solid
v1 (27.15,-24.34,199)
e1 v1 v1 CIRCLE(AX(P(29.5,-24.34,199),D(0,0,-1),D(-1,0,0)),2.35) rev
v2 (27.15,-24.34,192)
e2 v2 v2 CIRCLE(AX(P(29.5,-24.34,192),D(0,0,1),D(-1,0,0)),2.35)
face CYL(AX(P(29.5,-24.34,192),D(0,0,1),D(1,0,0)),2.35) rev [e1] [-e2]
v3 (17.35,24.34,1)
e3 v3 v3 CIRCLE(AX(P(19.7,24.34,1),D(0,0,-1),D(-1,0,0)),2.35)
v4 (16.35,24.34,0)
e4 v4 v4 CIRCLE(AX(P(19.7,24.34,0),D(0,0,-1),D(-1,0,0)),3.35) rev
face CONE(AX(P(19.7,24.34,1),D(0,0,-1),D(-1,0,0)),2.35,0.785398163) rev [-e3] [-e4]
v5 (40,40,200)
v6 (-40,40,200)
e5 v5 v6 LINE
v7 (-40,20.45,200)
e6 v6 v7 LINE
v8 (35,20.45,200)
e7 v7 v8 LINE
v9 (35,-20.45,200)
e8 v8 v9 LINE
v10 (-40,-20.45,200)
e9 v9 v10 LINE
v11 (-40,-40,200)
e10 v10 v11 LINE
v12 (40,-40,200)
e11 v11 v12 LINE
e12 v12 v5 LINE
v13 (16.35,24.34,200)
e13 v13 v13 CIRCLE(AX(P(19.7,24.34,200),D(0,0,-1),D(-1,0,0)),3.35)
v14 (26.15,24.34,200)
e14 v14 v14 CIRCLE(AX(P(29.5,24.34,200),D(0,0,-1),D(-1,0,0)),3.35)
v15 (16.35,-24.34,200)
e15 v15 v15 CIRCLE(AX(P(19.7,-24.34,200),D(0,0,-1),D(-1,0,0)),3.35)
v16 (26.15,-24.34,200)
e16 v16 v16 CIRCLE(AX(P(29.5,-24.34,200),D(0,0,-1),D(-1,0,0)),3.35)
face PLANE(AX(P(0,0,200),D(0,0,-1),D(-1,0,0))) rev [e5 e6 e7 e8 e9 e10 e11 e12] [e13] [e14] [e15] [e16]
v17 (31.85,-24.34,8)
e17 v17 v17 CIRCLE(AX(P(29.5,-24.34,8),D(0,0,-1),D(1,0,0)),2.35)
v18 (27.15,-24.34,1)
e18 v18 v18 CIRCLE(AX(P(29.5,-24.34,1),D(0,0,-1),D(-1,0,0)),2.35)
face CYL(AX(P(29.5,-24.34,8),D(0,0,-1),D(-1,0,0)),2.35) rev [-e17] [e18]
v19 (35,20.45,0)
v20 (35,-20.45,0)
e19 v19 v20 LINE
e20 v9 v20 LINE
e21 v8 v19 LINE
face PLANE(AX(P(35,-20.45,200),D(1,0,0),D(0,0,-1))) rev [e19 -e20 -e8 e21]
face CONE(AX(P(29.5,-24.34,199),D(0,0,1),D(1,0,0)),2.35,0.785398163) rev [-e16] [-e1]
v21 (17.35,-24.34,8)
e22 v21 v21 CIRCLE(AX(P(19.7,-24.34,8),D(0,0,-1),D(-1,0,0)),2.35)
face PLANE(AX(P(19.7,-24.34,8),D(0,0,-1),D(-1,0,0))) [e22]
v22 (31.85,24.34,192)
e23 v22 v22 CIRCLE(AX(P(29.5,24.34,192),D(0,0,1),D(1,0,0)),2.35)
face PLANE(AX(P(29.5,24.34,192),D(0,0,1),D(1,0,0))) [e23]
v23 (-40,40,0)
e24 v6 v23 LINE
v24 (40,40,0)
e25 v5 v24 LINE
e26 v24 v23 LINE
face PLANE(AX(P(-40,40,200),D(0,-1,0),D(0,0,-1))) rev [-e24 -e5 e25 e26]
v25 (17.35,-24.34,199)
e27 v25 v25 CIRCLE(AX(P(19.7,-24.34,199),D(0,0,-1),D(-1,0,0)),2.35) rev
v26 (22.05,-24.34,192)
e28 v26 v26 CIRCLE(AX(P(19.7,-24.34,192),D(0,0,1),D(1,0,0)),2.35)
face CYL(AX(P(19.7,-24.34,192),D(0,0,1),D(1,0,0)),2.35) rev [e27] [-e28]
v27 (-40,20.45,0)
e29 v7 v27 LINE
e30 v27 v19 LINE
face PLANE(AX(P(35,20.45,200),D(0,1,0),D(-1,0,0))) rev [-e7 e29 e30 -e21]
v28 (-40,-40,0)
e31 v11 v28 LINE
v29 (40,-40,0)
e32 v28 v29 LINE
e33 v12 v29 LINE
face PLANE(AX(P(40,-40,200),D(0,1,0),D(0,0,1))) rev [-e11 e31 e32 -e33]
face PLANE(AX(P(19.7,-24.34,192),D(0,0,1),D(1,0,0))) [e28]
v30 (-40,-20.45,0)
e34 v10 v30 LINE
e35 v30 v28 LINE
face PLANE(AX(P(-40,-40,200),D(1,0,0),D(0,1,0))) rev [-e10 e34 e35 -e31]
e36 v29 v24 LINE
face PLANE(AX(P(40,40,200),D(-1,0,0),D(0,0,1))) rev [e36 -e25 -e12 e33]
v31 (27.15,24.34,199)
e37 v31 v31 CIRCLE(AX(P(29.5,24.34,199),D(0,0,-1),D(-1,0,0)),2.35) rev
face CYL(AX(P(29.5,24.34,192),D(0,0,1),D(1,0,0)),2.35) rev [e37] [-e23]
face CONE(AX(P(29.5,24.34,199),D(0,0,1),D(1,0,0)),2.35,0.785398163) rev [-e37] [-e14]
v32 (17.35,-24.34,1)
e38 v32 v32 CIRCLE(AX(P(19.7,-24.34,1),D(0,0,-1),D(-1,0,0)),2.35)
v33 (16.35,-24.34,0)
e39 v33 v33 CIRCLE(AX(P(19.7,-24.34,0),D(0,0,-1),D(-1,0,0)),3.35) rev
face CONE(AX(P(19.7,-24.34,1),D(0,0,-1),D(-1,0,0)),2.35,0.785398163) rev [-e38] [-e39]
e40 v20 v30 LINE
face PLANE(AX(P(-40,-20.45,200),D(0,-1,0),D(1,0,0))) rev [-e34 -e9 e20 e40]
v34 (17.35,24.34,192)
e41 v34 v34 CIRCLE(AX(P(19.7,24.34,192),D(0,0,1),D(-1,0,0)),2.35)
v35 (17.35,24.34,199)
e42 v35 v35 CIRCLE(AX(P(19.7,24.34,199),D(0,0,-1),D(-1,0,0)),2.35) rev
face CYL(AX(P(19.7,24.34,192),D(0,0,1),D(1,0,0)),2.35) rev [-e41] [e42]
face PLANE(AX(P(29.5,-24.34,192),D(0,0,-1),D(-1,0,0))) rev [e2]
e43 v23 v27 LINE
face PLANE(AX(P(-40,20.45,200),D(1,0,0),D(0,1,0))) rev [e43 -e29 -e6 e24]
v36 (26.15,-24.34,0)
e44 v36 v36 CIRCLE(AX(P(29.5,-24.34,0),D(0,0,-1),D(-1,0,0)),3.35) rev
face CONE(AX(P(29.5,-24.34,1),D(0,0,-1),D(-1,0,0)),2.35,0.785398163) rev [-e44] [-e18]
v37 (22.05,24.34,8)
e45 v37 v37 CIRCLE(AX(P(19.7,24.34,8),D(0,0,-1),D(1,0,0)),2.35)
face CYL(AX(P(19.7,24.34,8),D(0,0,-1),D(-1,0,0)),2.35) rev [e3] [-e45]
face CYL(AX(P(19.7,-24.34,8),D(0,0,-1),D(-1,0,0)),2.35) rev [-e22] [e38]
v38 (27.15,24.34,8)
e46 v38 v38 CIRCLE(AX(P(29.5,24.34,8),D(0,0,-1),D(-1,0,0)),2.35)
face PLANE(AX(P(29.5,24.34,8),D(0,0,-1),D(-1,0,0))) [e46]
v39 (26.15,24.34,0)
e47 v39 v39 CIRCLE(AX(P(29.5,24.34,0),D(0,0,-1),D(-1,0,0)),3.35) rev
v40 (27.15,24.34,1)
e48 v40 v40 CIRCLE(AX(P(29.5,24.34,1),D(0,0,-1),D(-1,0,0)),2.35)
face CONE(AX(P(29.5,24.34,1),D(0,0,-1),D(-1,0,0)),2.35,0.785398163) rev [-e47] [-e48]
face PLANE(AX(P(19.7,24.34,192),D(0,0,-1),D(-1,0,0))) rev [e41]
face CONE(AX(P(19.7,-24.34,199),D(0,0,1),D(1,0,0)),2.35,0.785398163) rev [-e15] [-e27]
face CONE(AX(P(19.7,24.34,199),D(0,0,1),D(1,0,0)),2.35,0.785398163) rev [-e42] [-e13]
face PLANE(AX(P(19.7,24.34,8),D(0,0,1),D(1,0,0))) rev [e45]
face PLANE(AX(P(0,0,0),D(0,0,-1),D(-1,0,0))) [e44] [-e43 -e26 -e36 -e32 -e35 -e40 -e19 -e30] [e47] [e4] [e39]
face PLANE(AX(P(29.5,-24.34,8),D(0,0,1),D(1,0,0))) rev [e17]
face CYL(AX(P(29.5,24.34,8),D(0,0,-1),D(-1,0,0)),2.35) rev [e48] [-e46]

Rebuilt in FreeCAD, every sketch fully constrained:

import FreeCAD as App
import Part
import Sketcher
from FreeCAD import Vector


def edges_at(feature, points):
    """Names of the edges that pass closest to the given points."""
    edges = feature.Shape.Edges
    near = lambda p: min(range(len(edges)), key=lambda i: edges[i].distToShape(Part.Vertex(*p))[0])
    return sorted({f"Edge{near(p) + 1}" for p in points})


def add_polygon(sketch, points):
    """Adds a closed chain of lines whose ends are joined by coincident constraints."""
    first, n = sketch.GeometryCount, len(points)
    for a, b in zip(points, points[1:] + points[:1]):
        sketch.addGeometry(Part.LineSegment(App.Vector(*a, 0), App.Vector(*b, 0)), False)
    for i in range(n):
        sketch.addConstraint(Sketcher.Constraint("Coincident", first + i, 2, first + (i + 1) % n, 1))

doc = App.newDocument("Part")
body = doc.addObject("PartDesign::Body", "Body")

# Sketch on XY plane
sketch1 = body.newObject("Sketcher::SketchObject", "Sketch")
sketch1.AttachmentSupport = (doc.getObject("XY_Plane"), [""])
sketch1.MapMode = "FlatFace"
add_polygon(sketch1, [(40, 40), (-40, 40), (-40, 20), (35, 20), (35, -20), (-40, -20), (-40, -40), (40, -40)])  # lines 0-7
sketch1.addConstraint([
    Sketcher.Constraint("Horizontal", 0),
    Sketcher.Constraint("Vertical", 1),
    Sketcher.Constraint("Horizontal", 2),
    Sketcher.Constraint("Vertical", 3),
    Sketcher.Constraint("Horizontal", 4),
    Sketcher.Constraint("Vertical", 5),
    Sketcher.Constraint("Horizontal", 6),
    Sketcher.Constraint("Vertical", 7),
    Sketcher.Constraint("Symmetric", 0, 2, 6, 2, -1, 1),
    Sketcher.Constraint("Symmetric", 1, 2, 4, 2, -1),
    Sketcher.Constraint("Equal", 6, 7),
    Sketcher.Constraint("DistanceX", 0, 2, 0, 1, 80.0),
    Sketcher.Constraint("DistanceX", 2, 1, 2, 2, 75.0),
    Sketcher.Constraint("DistanceY", 3, 2, 3, 1, 40.9),
])
pad1 = body.newObject("PartDesign::Pad", "Pad")
pad1.Profile = sketch1
pad1.Length = 200

# Sketch on XY plane
sketch2 = body.newObject("Sketcher::SketchObject", "Sketch001")
sketch2.AttachmentSupport = (doc.getObject("XY_Plane"), [""])
sketch2.MapMode = "FlatFace"
sketch2.AttachmentOffset = App.Placement(Vector(0, 0, 200), App.Rotation())
sketch2.addGeometry([
    Part.Circle(Vector(29.5, 24.3, 0), Vector(0, 0, 1), 2.4),
    Part.Circle(Vector(19.7, 24.3, 0), Vector(0, 0, 1), 2.4),
    Part.Circle(Vector(19.7, -24.3, 0), Vector(0, 0, 1), 2.4),
    Part.Circle(Vector(29.5, -24.3, 0), Vector(0, 0, 1), 2.4),
], False)
sketch2.addConstraint([
    Sketcher.Constraint("Equal", 0, 1),
    Sketcher.Constraint("Equal", 1, 2),
    Sketcher.Constraint("Equal", 2, 3),
    Sketcher.Constraint("Symmetric", 1, 3, 2, 3, -1),
    Sketcher.Constraint("Symmetric", 0, 3, 3, 3, -1),
    Sketcher.Constraint("Horizontal", 0, 3, 1, 3),
    Sketcher.Constraint("Diameter", 0, 4.7),
    Sketcher.Constraint("DistanceX", -1, 1, 0, 3, 29.5),
    Sketcher.Constraint("DistanceX", -1, 1, 1, 3, 19.7),
    Sketcher.Constraint("DistanceY", -1, 1, 0, 3, 24.34),
])
pocket1 = body.newObject("PartDesign::Pocket", "Pocket")
pocket1.Profile = sketch2
pocket1.Length = 8

# Sketch on XY plane
sketch3 = body.newObject("Sketcher::SketchObject", "Sketch002")
sketch3.AttachmentSupport = (doc.getObject("XY_Plane"), [""])
sketch3.MapMode = "FlatFace"
sketch3.AttachmentOffset = App.Placement(Vector(0, 0, 8), App.Rotation())
sketch3.addGeometry([
    Part.Circle(Vector(29.5, 24.3, 0), Vector(0, 0, 1), 2.4),
    Part.Circle(Vector(19.7, 24.3, 0), Vector(0, 0, 1), 2.4),
    Part.Circle(Vector(19.7, -24.3, 0), Vector(0, 0, 1), 2.4),
    Part.Circle(Vector(29.5, -24.3, 0), Vector(0, 0, 1), 2.4),
], False)
sketch3.addConstraint([
    Sketcher.Constraint("Equal", 0, 1),
    Sketcher.Constraint("Equal", 1, 2),
    Sketcher.Constraint("Equal", 2, 3),
    Sketcher.Constraint("Symmetric", 1, 3, 2, 3, -1),
    Sketcher.Constraint("Symmetric", 0, 3, 3, 3, -1),
    Sketcher.Constraint("Horizontal", 0, 3, 1, 3),
    Sketcher.Constraint("Diameter", 0, 4.7),
    Sketcher.Constraint("DistanceX", -1, 1, 0, 3, 29.5),
    Sketcher.Constraint("DistanceX", -1, 1, 1, 3, 19.7),
    Sketcher.Constraint("DistanceY", -1, 1, 0, 3, 24.34),
])
pocket2 = body.newObject("PartDesign::Pocket", "Pocket001")
pocket2.Profile = sketch3
pocket2.Length = 8
doc.recompute()

chamfer = body.newObject("PartDesign::Chamfer", "Chamfer")
chamfer.Base = (pocket2, edges_at(pocket2, [
    (31.85, -24.34, 200),
    (17.35, -24.34, 200),
    (22.05, 24.34, 200),
    (27.15, 24.34, 200),
    (31.85, -24.34, 0),
    (17.35, -24.34, 0),
    (22.05, 24.34, 0),
    (27.15, 24.34, 0),
]))
chamfer.Size = 1

doc.recompute()
